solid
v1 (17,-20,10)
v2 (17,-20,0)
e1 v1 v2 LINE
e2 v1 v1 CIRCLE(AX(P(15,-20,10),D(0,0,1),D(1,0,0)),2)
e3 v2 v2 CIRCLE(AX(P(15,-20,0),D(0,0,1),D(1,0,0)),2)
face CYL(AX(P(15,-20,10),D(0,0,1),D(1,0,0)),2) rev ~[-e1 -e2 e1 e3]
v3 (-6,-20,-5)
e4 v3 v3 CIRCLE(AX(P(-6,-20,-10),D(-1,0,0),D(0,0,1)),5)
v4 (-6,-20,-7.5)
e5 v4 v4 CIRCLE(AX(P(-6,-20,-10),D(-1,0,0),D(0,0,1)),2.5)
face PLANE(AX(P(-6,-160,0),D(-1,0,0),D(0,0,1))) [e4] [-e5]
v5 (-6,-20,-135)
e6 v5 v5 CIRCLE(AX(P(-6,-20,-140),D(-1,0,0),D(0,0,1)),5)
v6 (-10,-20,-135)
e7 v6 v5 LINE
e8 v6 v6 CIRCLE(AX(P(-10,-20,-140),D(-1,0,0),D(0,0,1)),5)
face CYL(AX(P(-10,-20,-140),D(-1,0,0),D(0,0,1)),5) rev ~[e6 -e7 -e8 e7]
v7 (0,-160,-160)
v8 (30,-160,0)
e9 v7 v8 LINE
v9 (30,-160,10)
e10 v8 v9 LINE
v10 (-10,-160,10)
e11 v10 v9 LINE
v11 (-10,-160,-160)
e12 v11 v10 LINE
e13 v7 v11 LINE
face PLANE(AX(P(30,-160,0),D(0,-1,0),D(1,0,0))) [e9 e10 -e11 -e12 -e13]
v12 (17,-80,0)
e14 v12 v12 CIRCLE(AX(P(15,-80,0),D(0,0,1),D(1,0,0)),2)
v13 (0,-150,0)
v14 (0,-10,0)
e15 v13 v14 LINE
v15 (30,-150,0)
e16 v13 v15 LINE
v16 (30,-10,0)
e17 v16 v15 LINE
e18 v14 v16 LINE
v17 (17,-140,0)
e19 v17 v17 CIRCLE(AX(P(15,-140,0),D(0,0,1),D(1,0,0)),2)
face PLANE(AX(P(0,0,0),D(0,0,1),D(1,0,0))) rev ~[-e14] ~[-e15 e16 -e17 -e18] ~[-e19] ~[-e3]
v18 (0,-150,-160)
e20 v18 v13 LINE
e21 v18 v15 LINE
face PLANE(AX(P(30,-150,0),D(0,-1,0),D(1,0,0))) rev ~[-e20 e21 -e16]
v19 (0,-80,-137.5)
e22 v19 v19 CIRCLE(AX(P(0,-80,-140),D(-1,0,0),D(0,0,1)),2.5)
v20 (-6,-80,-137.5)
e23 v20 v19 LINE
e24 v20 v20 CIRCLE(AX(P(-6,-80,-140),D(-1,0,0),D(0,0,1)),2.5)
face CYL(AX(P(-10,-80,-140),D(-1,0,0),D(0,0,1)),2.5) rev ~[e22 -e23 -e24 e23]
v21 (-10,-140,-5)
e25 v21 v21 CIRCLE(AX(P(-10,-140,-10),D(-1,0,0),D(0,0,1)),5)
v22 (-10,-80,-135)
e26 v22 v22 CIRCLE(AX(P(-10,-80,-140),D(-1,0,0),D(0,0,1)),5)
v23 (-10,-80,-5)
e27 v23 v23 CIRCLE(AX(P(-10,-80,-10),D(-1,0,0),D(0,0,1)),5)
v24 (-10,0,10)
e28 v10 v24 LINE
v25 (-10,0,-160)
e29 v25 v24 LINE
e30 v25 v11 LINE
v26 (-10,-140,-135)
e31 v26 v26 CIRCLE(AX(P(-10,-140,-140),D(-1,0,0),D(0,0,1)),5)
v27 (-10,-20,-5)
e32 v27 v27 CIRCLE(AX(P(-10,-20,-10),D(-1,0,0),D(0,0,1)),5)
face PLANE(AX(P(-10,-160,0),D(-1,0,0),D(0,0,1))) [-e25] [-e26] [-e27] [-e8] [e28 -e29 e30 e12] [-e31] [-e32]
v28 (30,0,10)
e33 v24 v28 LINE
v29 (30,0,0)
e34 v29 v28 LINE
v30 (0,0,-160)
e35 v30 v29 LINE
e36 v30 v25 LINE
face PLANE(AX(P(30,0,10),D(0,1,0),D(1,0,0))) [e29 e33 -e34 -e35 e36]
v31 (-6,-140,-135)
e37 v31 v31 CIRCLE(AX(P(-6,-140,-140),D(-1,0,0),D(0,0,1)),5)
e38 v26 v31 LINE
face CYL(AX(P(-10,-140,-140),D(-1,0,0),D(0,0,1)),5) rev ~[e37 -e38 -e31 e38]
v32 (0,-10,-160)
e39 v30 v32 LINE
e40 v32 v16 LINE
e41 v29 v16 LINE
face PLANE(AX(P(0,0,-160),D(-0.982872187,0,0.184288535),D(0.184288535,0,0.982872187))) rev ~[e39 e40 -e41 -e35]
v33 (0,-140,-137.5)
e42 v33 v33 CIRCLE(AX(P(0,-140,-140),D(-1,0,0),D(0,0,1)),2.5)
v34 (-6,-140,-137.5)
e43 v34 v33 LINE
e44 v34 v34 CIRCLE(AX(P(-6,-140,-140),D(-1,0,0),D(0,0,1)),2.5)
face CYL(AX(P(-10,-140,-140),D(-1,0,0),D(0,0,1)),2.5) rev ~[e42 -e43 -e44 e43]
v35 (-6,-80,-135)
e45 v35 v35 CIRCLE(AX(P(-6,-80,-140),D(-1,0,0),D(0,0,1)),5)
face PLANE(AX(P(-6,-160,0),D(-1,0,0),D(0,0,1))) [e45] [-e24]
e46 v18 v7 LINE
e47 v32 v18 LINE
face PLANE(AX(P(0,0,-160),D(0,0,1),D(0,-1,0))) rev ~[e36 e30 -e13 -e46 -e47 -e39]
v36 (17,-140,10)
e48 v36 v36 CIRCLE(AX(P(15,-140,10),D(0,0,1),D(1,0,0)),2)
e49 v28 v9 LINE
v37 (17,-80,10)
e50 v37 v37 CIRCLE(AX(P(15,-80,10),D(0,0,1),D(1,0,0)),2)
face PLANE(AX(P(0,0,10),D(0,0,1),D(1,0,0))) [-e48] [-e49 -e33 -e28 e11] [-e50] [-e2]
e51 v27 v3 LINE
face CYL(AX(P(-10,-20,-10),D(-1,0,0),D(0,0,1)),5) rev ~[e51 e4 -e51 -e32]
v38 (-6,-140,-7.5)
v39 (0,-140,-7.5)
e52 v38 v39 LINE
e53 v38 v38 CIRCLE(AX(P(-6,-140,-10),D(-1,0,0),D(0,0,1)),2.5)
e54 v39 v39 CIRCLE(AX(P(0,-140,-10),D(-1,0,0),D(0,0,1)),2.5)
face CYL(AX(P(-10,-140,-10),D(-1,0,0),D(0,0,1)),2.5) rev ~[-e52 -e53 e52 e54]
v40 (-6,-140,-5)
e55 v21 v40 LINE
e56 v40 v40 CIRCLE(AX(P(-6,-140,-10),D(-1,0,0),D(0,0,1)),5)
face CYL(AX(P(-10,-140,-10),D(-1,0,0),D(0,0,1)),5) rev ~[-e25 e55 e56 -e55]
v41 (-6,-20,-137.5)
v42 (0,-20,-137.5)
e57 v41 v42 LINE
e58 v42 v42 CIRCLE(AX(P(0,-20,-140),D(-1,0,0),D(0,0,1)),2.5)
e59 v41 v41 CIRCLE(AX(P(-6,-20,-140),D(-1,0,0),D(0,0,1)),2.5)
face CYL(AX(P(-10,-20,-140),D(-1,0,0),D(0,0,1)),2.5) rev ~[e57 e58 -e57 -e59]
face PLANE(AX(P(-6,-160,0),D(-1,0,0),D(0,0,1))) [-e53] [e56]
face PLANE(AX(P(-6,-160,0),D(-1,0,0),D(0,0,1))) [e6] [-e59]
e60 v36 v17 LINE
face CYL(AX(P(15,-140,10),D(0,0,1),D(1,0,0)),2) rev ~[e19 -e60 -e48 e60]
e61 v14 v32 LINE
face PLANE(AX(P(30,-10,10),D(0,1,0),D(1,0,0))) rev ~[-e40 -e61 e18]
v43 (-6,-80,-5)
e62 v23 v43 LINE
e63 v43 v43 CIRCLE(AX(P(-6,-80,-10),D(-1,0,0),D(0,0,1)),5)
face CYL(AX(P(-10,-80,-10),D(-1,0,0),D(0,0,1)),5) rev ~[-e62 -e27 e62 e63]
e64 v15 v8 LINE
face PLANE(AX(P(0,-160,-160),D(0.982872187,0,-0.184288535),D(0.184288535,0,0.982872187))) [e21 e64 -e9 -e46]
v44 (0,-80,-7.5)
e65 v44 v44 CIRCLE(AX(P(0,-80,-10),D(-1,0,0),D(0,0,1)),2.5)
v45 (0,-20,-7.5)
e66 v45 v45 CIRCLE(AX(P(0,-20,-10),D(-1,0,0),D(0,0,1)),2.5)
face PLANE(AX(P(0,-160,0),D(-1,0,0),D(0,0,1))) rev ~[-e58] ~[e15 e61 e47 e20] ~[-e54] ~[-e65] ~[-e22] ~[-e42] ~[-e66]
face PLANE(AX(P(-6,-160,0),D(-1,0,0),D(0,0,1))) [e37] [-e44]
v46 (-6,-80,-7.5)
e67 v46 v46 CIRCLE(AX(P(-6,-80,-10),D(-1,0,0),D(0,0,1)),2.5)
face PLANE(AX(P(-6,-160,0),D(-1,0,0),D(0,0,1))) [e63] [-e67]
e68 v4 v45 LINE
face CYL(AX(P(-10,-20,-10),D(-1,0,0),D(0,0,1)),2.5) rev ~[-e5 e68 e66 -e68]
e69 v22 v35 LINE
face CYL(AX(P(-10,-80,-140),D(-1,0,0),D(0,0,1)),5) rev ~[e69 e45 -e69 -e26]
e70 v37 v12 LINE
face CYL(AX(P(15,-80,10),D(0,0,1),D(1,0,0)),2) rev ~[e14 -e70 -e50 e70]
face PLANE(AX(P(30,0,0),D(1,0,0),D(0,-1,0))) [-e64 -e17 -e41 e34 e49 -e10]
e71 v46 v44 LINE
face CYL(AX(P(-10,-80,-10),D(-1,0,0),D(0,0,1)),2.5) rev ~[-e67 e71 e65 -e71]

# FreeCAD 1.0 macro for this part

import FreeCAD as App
import Part
import Sketcher

V = App.Vector

doc = App.newDocument("Part")
body = doc.addObject("PartDesign::Body", "Body")

# Sketch on XY plane
sketch1 = doc.addObject("Sketcher::SketchObject", "Sketch")
body.addObject(sketch1)
sketch1.AttachmentSupport = (doc.XY_Plane, [""])
sketch1.MapMode = "FlatFace"
sketch1.addGeometry([
    Part.LineSegment(V(30, 0, 0), V(0, 0, 0)),
    Part.LineSegment(V(0, 0, 0), V(0, -160, 0)),
    Part.LineSegment(V(0, -160, 0), V(30, -160, 0)),
    Part.LineSegment(V(30, -160, 0), V(30, 0, 0)),
], False)
sketch1.addConstraint([
    Sketcher.Constraint("Coincident", 0, 2, 1, 1),
    Sketcher.Constraint("Coincident", 1, 2, 2, 1),
    Sketcher.Constraint("Coincident", 2, 2, 3, 1),
    Sketcher.Constraint("Coincident", 3, 2, 0, 1),
    Sketcher.Constraint("Horizontal", 0),
    Sketcher.Constraint("Vertical", 1),
    Sketcher.Constraint("Horizontal", 2),
    Sketcher.Constraint("Vertical", 3),
    Sketcher.Constraint("Coincident", 0, 2, -1, 1),
    Sketcher.Constraint("DistanceX", 0, 2, 0, 1, 30.0),
    Sketcher.Constraint("DistanceY", 1, 2, 1, 1, 160.0),
])
pad1 = doc.addObject("PartDesign::Pad", "Pad")
body.addObject(pad1)
pad1.Profile = sketch1
pad1.Length = 10

# Sketch on YZ plane
sketch2 = doc.addObject("Sketcher::SketchObject", "Sketch001")
body.addObject(sketch2)
sketch2.AttachmentSupport = (doc.YZ_Plane, [""])
sketch2.MapMode = "FlatFace"
sketch2.addGeometry([
    Part.LineSegment(V(0, 10, 0), V(0, -160, 0)),
    Part.LineSegment(V(0, -160, 0), V(-160, -160, 0)),
    Part.LineSegment(V(-160, -160, 0), V(-160, 10, 0)),
    Part.LineSegment(V(-160, 10, 0), V(0, 10, 0)),
], False)
sketch2.addConstraint([
    Sketcher.Constraint("Coincident", 0, 2, 1, 1),
    Sketcher.Constraint("Coincident", 1, 2, 2, 1),
    Sketcher.Constraint("Coincident", 2, 2, 3, 1),
    Sketcher.Constraint("Coincident", 3, 2, 0, 1),
    Sketcher.Constraint("Vertical", 0),
    Sketcher.Constraint("Horizontal", 1),
    Sketcher.Constraint("Vertical", 2),
    Sketcher.Constraint("Horizontal", 3),
    Sketcher.Constraint("PointOnObject", 0, 2, -2),
    Sketcher.Constraint("DistanceX", 1, 2, 1, 1, 160.0),
    Sketcher.Constraint("DistanceY", 0, 2, 0, 1, 170.0),
    Sketcher.Constraint("DistanceY", 0, 2, -1, 1, 160.0),
])
pad2 = doc.addObject("PartDesign::Pad", "Pad001")
body.addObject(pad2)
pad2.Profile = sketch2
pad2.Length = 10
pad2.Reversed = True

# Sketch on XZ plane
sketch3 = doc.addObject("Sketcher::SketchObject", "Sketch002")
body.addObject(sketch3)
sketch3.AttachmentSupport = (doc.XZ_Plane, [""])
sketch3.MapMode = "FlatFace"
sketch3.addGeometry([
    Part.LineSegment(V(30, 0, 0), V(0, -160, 0)),
    Part.LineSegment(V(0, -160, 0), V(0, 0, 0)),
    Part.LineSegment(V(0, 0, 0), V(30, 0, 0)),
], False)
sketch3.addConstraint([
    Sketcher.Constraint("Coincident", 0, 2, 1, 1),
    Sketcher.Constraint("Coincident", 1, 2, 2, 1),
    Sketcher.Constraint("Coincident", 2, 2, 0, 1),
    Sketcher.Constraint("Vertical", 1),
    Sketcher.Constraint("Horizontal", 2),
    Sketcher.Constraint("Coincident", 1, 2, -1, 1),
    Sketcher.Constraint("DistanceX", 2, 1, 2, 2, 30.0),
    Sketcher.Constraint("DistanceY", 1, 1, 1, 2, 160.0),
])
pad3 = doc.addObject("PartDesign::Pad", "Pad002")
body.addObject(pad3)
pad3.Profile = sketch3
pad3.Length = 10

# Sketch on XZ plane
sketch4 = doc.addObject("Sketcher::SketchObject", "Sketch003")
body.addObject(sketch4)
sketch4.AttachmentSupport = (doc.XZ_Plane, [""])
sketch4.MapMode = "FlatFace"
sketch4.AttachmentOffset = App.Placement(V(0, 0, 160), App.Rotation())
sketch4.addGeometry([
    Part.LineSegment(V(30, 0, 0), V(0, 0, 0)),
    Part.LineSegment(V(0, 0, 0), V(0, -160, 0)),
    Part.LineSegment(V(0, -160, 0), V(30, 0, 0)),
], False)
sketch4.addConstraint([
    Sketcher.Constraint("Coincident", 0, 2, 1, 1),
    Sketcher.Constraint("Coincident", 1, 2, 2, 1),
    Sketcher.Constraint("Coincident", 2, 2, 0, 1),
    Sketcher.Constraint("Horizontal", 0),
    Sketcher.Constraint("Vertical", 1),
    Sketcher.Constraint("Coincident", 0, 2, -1, 1),
    Sketcher.Constraint("DistanceX", 0, 2, 0, 1, 30.0),
    Sketcher.Constraint("DistanceY", 1, 2, 1, 1, 160.0),
])
pad4 = doc.addObject("PartDesign::Pad", "Pad003")
body.addObject(pad4)
pad4.Profile = sketch4
pad4.Length = 10
pad4.Reversed = True

# Sketch on XY plane
sketch5 = doc.addObject("Sketcher::SketchObject", "Sketch004")
body.addObject(sketch5)
sketch5.AttachmentSupport = (doc.XY_Plane, [""])
sketch5.MapMode = "FlatFace"
sketch5.AttachmentOffset = App.Placement(V(0, 0, 10), App.Rotation())
sketch5.addGeometry([
    Part.Circle(V(15, -20, 0), V(0, 0, 1), 2),
    Part.Circle(V(15, -80, 0), V(0, 0, 1), 2),
    Part.Circle(V(15, -140, 0), V(0, 0, 1), 2),
], False)
sketch5.addConstraint([
    Sketcher.Constraint("Equal", 0, 1),
    Sketcher.Constraint("Equal", 1, 2),
    Sketcher.Constraint("Vertical", 0, 3, 1, 3),
    Sketcher.Constraint("Vertical", 1, 3, 2, 3),
    Sketcher.Constraint("Diameter", 0, 4.0),
    Sketcher.Constraint("DistanceY", 0, 3, -1, 1, 20.0),
    Sketcher.Constraint("DistanceY", 1, 3, -1, 1, 80.0),
    Sketcher.Constraint("DistanceX", -1, 1, 0, 3, 15.0),
    Sketcher.Constraint("DistanceY", 2, 3, -1, 1, 140.0),
])
pocket1 = doc.addObject("PartDesign::Pocket", "Pocket")
body.addObject(pocket1)
pocket1.Profile = sketch5
pocket1.Length = 20

# Sketch on YZ plane
sketch6 = doc.addObject("Sketcher::SketchObject", "Sketch005")
body.addObject(sketch6)
sketch6.AttachmentSupport = (doc.YZ_Plane, [""])
sketch6.MapMode = "FlatFace"
sketch6.AttachmentOffset = App.Placement(V(0, 0, -10), App.Rotation())
sketch6.addGeometry([
    Part.Circle(V(-140, -10, 0), V(0, 0, 1), 2.5),  # 0
    Part.Circle(V(-80, -10, 0), V(0, 0, 1), 2.5),  # 1
    Part.Circle(V(-20, -10, 0), V(0, 0, 1), 2.5),  # 2
    Part.Circle(V(-80, -140, 0), V(0, 0, 1), 2.5),  # 3
    Part.Circle(V(-140, -140, 0), V(0, 0, 1), 2.5),  # 4
    Part.Circle(V(-20, -140, 0), V(0, 0, 1), 2.5),  # 5
], False)
sketch6.addConstraint([
    Sketcher.Constraint("Equal", 0, 1),
    Sketcher.Constraint("Equal", 1, 2),
    Sketcher.Constraint("Equal", 2, 3),
    Sketcher.Constraint("Equal", 3, 4),
    Sketcher.Constraint("Equal", 4, 5),
    Sketcher.Constraint("Horizontal", 0, 3, 1, 3),
    Sketcher.Constraint("Horizontal", 1, 3, 2, 3),
    Sketcher.Constraint("Horizontal", 3, 3, 4, 3),
    Sketcher.Constraint("Horizontal", 4, 3, 5, 3),
    Sketcher.Constraint("Vertical", 1, 3, 3, 3),
    Sketcher.Constraint("Vertical", 0, 3, 4, 3),
    Sketcher.Constraint("Vertical", 2, 3, 5, 3),
    Sketcher.Constraint("Diameter", 0, 5.0),
    Sketcher.Constraint("DistanceX", 1, 3, -1, 1, 80.0),
    Sketcher.Constraint("DistanceX", 2, 3, -1, 1, 20.0),
    Sketcher.Constraint("DistanceX", 0, 3, -1, 1, 140.0),
    Sketcher.Constraint("DistanceY", 0, 3, -1, 1, 10.0),
    Sketcher.Constraint("DistanceY", 3, 3, -1, 1, 140.0),
])
pocket2 = doc.addObject("PartDesign::Pocket", "Pocket001")
body.addObject(pocket2)
pocket2.Profile = sketch6
pocket2.Length = 20
pocket2.Reversed = True

# Sketch on YZ plane
sketch7 = doc.addObject("Sketcher::SketchObject", "Sketch006")
body.addObject(sketch7)
sketch7.AttachmentSupport = (doc.YZ_Plane, [""])
sketch7.MapMode = "FlatFace"
sketch7.AttachmentOffset = App.Placement(V(0, 0, -10), App.Rotation())
sketch7.addGeometry([
    Part.Circle(V(-80, -140, 0), V(0, 0, 1), 5),  # 0
    Part.Circle(V(-140, -140, 0), V(0, 0, 1), 5),  # 1
    Part.Circle(V(-20, -140, 0), V(0, 0, 1), 5),  # 2
    Part.Circle(V(-140, -10, 0), V(0, 0, 1), 5),  # 3
    Part.Circle(V(-80, -10, 0), V(0, 0, 1), 5),  # 4
    Part.Circle(V(-20, -10, 0), V(0, 0, 1), 5),  # 5
], False)
sketch7.addConstraint([
    Sketcher.Constraint("Equal", 0, 1),
    Sketcher.Constraint("Equal", 1, 2),
    Sketcher.Constraint("Equal", 2, 3),
    Sketcher.Constraint("Equal", 3, 4),
    Sketcher.Constraint("Equal", 4, 5),
    Sketcher.Constraint("Horizontal", 0, 3, 1, 3),
    Sketcher.Constraint("Horizontal", 1, 3, 2, 3),
    Sketcher.Constraint("Horizontal", 3, 3, 4, 3),
    Sketcher.Constraint("Horizontal", 4, 3, 5, 3),
    Sketcher.Constraint("Vertical", 1, 3, 3, 3),
    Sketcher.Constraint("Vertical", 0, 3, 4, 3),
    Sketcher.Constraint("Vertical", 2, 3, 5, 3),
    Sketcher.Constraint("Diameter", 0, 10.0),
    Sketcher.Constraint("DistanceY", 3, 3, -1, 1, 10.0),
    Sketcher.Constraint("DistanceX", 0, 3, -1, 1, 80.0),
    Sketcher.Constraint("DistanceY", 0, 3, -1, 1, 140.0),
    Sketcher.Constraint("DistanceX", 1, 3, -1, 1, 140.0),
    Sketcher.Constraint("DistanceX", 2, 3, -1, 1, 20.0),
])
pocket3 = doc.addObject("PartDesign::Pocket", "Pocket002")
body.addObject(pocket3)
pocket3.Profile = sketch7
pocket3.Length = 4
pocket3.Reversed = True

doc.recompute()
